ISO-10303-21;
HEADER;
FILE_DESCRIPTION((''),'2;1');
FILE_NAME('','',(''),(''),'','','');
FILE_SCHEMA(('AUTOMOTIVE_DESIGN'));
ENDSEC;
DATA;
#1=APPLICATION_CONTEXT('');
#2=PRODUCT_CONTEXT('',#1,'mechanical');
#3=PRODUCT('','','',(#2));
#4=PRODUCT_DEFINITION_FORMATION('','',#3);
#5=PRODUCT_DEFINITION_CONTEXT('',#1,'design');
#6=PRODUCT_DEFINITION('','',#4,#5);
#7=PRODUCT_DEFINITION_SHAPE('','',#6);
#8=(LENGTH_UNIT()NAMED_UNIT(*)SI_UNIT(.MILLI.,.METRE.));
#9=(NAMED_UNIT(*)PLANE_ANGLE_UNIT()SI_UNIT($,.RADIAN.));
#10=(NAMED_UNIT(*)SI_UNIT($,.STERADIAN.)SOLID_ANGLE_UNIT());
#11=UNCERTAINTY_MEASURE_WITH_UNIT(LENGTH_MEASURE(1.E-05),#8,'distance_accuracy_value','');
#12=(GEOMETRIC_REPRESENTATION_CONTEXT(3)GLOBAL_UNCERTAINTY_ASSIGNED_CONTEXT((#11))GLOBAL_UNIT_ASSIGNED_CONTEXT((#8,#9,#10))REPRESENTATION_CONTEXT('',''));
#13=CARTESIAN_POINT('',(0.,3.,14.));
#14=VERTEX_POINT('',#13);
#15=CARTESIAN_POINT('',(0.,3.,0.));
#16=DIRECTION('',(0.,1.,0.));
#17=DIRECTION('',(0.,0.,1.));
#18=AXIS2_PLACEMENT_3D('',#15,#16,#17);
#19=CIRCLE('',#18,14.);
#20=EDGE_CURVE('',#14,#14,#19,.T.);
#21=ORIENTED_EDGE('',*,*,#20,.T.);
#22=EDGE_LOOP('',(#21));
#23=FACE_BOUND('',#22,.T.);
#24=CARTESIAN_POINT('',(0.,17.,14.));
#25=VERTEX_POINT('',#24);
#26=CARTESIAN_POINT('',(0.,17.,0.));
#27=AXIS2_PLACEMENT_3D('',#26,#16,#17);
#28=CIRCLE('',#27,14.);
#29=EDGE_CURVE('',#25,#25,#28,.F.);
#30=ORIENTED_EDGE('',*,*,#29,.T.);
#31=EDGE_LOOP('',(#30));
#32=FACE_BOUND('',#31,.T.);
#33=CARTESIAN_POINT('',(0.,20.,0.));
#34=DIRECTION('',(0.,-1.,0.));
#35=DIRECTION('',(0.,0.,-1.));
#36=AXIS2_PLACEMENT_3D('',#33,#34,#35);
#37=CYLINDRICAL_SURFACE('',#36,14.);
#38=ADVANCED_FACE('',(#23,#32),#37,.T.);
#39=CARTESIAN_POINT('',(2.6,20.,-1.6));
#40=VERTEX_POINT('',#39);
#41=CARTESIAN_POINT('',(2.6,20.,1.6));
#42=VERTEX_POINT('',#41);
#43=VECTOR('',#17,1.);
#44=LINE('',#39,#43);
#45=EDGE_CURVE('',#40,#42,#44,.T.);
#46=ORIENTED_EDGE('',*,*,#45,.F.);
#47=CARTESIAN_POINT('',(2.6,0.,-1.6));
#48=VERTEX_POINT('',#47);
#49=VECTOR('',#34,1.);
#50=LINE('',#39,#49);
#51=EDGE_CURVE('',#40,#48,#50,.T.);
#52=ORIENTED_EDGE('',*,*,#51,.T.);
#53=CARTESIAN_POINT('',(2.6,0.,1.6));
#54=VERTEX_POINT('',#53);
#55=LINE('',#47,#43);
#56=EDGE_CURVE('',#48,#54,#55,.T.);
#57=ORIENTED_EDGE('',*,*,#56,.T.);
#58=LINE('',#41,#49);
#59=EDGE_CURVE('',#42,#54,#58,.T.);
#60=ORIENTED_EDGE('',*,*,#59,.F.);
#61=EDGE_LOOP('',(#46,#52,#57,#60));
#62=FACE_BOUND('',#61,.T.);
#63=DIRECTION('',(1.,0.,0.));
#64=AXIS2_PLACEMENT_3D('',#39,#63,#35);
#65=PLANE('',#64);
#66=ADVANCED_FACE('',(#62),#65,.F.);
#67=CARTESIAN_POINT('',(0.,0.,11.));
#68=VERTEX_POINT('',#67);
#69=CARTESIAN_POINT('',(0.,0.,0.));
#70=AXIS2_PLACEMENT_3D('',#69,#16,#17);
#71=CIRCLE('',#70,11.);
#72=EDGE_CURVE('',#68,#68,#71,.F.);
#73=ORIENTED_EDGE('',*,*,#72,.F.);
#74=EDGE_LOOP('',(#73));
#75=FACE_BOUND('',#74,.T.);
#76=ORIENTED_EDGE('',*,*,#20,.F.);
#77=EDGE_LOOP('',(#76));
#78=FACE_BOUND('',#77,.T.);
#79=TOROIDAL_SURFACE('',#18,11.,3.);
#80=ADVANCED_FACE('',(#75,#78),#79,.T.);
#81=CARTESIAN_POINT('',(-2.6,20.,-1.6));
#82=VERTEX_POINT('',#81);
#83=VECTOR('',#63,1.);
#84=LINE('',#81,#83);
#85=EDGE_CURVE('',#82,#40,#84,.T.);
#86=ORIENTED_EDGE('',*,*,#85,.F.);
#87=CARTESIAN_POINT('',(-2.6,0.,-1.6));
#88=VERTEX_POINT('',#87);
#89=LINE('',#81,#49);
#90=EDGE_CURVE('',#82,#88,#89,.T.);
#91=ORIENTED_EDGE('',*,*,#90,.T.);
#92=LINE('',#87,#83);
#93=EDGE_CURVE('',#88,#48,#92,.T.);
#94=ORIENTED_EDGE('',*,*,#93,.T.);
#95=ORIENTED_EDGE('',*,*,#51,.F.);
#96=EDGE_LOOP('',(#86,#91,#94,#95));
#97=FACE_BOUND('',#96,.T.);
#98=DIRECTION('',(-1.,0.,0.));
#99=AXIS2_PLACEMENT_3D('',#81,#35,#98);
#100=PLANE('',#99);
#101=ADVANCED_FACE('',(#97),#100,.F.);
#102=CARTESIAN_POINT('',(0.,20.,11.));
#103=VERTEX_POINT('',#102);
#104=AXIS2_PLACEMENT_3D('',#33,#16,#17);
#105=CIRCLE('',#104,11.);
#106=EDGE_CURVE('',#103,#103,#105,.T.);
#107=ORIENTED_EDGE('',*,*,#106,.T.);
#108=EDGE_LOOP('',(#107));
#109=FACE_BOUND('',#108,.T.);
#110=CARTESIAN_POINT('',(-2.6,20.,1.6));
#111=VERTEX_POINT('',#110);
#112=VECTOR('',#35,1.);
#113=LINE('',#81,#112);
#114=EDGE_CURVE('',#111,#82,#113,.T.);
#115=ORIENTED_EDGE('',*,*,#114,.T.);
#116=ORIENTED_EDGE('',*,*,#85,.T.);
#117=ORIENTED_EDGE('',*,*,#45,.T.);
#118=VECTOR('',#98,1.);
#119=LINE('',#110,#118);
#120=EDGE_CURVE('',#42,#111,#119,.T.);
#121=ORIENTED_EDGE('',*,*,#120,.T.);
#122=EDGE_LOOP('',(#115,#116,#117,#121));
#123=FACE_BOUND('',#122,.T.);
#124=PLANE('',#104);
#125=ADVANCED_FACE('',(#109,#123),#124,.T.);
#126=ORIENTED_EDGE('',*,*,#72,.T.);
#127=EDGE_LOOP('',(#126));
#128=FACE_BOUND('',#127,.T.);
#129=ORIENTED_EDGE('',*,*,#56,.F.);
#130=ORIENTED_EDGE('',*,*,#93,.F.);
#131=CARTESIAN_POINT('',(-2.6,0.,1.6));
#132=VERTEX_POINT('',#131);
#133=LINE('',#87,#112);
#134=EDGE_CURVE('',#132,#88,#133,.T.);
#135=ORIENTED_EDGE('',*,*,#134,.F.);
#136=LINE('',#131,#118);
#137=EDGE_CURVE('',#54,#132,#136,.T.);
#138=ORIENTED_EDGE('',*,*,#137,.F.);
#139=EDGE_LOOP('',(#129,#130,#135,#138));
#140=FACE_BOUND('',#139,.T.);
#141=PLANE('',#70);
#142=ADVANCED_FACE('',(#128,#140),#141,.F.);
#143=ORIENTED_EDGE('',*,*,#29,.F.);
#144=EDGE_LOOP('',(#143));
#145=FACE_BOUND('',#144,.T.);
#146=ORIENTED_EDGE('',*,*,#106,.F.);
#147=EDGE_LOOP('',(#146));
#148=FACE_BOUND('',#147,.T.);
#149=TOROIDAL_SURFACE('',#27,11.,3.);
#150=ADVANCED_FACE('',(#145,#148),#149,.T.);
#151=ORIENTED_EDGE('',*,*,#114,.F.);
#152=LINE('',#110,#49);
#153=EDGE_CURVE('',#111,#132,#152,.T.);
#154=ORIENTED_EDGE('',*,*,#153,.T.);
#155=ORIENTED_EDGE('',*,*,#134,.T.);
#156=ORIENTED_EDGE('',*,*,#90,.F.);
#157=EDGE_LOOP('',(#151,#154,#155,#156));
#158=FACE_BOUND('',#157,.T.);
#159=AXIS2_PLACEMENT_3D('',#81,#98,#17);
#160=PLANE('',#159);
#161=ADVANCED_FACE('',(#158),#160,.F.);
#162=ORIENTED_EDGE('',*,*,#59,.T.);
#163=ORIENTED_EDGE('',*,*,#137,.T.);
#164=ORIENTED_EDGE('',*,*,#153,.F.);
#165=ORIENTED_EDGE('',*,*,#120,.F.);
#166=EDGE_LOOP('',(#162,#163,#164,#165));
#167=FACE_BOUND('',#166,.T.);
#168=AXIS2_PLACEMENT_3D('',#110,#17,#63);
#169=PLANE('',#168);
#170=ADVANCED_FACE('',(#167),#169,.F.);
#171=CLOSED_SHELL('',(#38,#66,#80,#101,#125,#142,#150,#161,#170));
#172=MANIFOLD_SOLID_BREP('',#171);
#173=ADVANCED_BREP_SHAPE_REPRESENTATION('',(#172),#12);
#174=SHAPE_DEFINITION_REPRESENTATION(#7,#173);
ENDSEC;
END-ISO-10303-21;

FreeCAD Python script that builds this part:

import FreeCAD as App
import Part
import Sketcher


def edges_at(feature, points):
    """Names of the edges that pass closest to the given points."""
    edges = feature.Shape.Edges
    near = lambda p: min(range(len(edges)), key=lambda i: edges[i].distToShape(Part.Vertex(*p))[0])
    return sorted({f"Edge{near(p) + 1}" for p in points})


def add_polygon(sketch, points):
    """Adds a closed chain of lines whose ends are joined by coincident constraints."""
    first, n = sketch.GeometryCount, len(points)
    for a, b in zip(points, points[1:] + points[:1]):
        sketch.addGeometry(Part.LineSegment(App.Vector(*a, 0), App.Vector(*b, 0)), False)
    for i in range(n):
        sketch.addConstraint(Sketcher.Constraint("Coincident", first + i, 2, first + (i + 1) % n, 1))

doc = App.newDocument("Part")
params = doc.addObject("Spreadsheet::Sheet", "Params")
for row, (alias, value) in enumerate([
    ("sketch1_diameter", "28 mm"),
    ("pad1_length", "20 mm"),
    ("fillet_radius", "3 mm"),
    ("sketch2_width", "5.2 mm"),
    ("sketch2_height", "3.2 mm"),
], start=1):
    params.set(f"A{row}", alias)
    params.set(f"B{row}", "=" + value)
    params.setAlias(f"B{row}", alias)

body = doc.addObject("PartDesign::Body", "Body")

sketch1 = body.newObject("Sketcher::SketchObject", "Sketch")
sketch1.AttachmentSupport = (doc.getObject("XZ_Plane"), [""])
sketch1.MapMode = "FlatFace"
sketch1.addGeometry(Part.Circle(App.Vector(0, 0, 0), App.Vector(0, 0, 1), 14), False)
sketch1.addConstraint(Sketcher.Constraint("Coincident", 0, 3, -1, 1))
sketch1.addConstraint(Sketcher.Constraint("Diameter", 0, 28.0))
sketch1.setExpression("Constraints[1]", "Params.sketch1_diameter")
pad1 = body.newObject("PartDesign::Pad", "Pad")
pad1.Profile = sketch1
pad1.setExpression("Length", "Params.pad1_length")
pad1.Reversed = True
doc.recompute()

fillet = body.newObject("PartDesign::Fillet", "Fillet")
fillet.Base = (pad1, edges_at(pad1, [(-14, 0, 0), (-14, 20, 0)]))
fillet.setExpression("Radius", "Params.fillet_radius")

sketch2 = body.newObject("Sketcher::SketchObject", "Sketch001")
sketch2.AttachmentSupport = (doc.getObject("XZ_Plane"), [""])
sketch2.MapMode = "FlatFace"
add_polygon(sketch2, [(-2.6, 1.6), (-2.6, -1.6), (2.6, -1.6), (2.6, 1.6)])
sketch2.addConstraint(Sketcher.Constraint("Vertical", 0))
sketch2.addConstraint(Sketcher.Constraint("Horizontal", 1))
sketch2.addConstraint(Sketcher.Constraint("Vertical", 2))
sketch2.addConstraint(Sketcher.Constraint("Horizontal", 3))
sketch2.addConstraint(Sketcher.Constraint("Symmetric", 0, 2, 2, 2, -1, 1))
sketch2.addConstraint(Sketcher.Constraint("DistanceX", 1, 1, 1, 2, 5.2))
sketch2.addConstraint(Sketcher.Constraint("DistanceY", 0, 2, 0, 1, 3.2))
sketch2.setExpression("Constraints[9]", "Params.sketch2_width")
sketch2.setExpression("Constraints[10]", "Params.sketch2_height")
pocket1 = body.newObject("PartDesign::Pocket", "Pocket")
pocket1.Profile = sketch2
pocket1.Type = "ThroughAll"

doc.recompute()
